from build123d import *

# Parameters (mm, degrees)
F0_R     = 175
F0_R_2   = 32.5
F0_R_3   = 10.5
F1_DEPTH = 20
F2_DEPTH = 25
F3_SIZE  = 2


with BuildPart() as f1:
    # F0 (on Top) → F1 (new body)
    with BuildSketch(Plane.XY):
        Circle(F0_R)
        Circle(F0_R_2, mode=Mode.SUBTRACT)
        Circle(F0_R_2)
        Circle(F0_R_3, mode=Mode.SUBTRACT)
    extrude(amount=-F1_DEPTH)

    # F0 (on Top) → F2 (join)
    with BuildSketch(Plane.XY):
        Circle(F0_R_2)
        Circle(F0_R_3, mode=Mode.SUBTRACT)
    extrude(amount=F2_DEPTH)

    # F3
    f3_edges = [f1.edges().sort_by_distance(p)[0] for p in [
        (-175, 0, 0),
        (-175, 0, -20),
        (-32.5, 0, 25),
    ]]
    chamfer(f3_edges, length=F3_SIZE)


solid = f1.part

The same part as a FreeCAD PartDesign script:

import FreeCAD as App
import Part
import Sketcher
from FreeCAD import Vector
Q = App.Units.Quantity


def edges_at(feature, points):
    """Names of the edges that pass closest to the given points."""
    edges = feature.Shape.Edges
    near = lambda p: min(range(len(edges)), key=lambda i: edges[i].distToShape(Part.Vertex(*p))[0])
    return sorted({f"Edge{near(p) + 1}" for p in points})

doc = App.newDocument("Part")
body = doc.addObject("PartDesign::Body", "Body")

sketch1 = doc.addObject("Sketcher::SketchObject", "Sketch")
body.addObject(sketch1)
sketch1.AttachmentSupport = (doc.XY_Plane, [""])
sketch1.MapMode = "FlatFace"
sketch1.addGeometry(Part.Circle(Vector(0, 0, 0), Vector(0, 0, 1), 175), False)
sketch1.addGeometry(Part.Circle(Vector(0, 0, 0), Vector(0, 0, 1), 10), False)
sketch1.addConstraint(Sketcher.Constraint("Coincident", 0, 3, -1, 1))
sketch1.addConstraint(Sketcher.Constraint("Coincident", 1, 3, -1, 1))
sketch1.addConstraint(Sketcher.Constraint("Diameter", 0, Q("350 mm")))
sketch1.addConstraint(Sketcher.Constraint("Diameter", 1, Q("21 mm")))
pad1 = doc.addObject("PartDesign::Pad", "Pad")
body.addObject(pad1)
pad1.Profile = sketch1
pad1.Length = 20
pad1.Reversed = True

sketch2 = doc.addObject("Sketcher::SketchObject", "Sketch001")
body.addObject(sketch2)
sketch2.AttachmentSupport = (doc.XY_Plane, [""])
sketch2.MapMode = "FlatFace"
sketch2.addGeometry(Part.Circle(Vector(0, 0, 0), Vector(0, 0, 1), 32), False)
sketch2.addGeometry(Part.Circle(Vector(0, 0, 0), Vector(0, 0, 1), 10), False)
sketch2.addConstraint(Sketcher.Constraint("Coincident", 0, 3, -1, 1))
sketch2.addConstraint(Sketcher.Constraint("Coincident", 1, 3, -1, 1))
sketch2.addConstraint(Sketcher.Constraint("Diameter", 0, Q("65 mm")))
sketch2.addConstraint(Sketcher.Constraint("Diameter", 1, Q("21 mm")))
pad2 = doc.addObject("PartDesign::Pad", "Pad001")
body.addObject(pad2)
pad2.Profile = sketch2
pad2.Length = 25
doc.recompute()

chamfer = doc.addObject("PartDesign::Chamfer", "Chamfer")
body.addObject(chamfer)
chamfer.Base = (pad2, edges_at(pad2, [(-175, 0, 0), (-175, 0, -20), (-32.5, 0, 25)]))
chamfer.Size = 2

doc.recompute()
